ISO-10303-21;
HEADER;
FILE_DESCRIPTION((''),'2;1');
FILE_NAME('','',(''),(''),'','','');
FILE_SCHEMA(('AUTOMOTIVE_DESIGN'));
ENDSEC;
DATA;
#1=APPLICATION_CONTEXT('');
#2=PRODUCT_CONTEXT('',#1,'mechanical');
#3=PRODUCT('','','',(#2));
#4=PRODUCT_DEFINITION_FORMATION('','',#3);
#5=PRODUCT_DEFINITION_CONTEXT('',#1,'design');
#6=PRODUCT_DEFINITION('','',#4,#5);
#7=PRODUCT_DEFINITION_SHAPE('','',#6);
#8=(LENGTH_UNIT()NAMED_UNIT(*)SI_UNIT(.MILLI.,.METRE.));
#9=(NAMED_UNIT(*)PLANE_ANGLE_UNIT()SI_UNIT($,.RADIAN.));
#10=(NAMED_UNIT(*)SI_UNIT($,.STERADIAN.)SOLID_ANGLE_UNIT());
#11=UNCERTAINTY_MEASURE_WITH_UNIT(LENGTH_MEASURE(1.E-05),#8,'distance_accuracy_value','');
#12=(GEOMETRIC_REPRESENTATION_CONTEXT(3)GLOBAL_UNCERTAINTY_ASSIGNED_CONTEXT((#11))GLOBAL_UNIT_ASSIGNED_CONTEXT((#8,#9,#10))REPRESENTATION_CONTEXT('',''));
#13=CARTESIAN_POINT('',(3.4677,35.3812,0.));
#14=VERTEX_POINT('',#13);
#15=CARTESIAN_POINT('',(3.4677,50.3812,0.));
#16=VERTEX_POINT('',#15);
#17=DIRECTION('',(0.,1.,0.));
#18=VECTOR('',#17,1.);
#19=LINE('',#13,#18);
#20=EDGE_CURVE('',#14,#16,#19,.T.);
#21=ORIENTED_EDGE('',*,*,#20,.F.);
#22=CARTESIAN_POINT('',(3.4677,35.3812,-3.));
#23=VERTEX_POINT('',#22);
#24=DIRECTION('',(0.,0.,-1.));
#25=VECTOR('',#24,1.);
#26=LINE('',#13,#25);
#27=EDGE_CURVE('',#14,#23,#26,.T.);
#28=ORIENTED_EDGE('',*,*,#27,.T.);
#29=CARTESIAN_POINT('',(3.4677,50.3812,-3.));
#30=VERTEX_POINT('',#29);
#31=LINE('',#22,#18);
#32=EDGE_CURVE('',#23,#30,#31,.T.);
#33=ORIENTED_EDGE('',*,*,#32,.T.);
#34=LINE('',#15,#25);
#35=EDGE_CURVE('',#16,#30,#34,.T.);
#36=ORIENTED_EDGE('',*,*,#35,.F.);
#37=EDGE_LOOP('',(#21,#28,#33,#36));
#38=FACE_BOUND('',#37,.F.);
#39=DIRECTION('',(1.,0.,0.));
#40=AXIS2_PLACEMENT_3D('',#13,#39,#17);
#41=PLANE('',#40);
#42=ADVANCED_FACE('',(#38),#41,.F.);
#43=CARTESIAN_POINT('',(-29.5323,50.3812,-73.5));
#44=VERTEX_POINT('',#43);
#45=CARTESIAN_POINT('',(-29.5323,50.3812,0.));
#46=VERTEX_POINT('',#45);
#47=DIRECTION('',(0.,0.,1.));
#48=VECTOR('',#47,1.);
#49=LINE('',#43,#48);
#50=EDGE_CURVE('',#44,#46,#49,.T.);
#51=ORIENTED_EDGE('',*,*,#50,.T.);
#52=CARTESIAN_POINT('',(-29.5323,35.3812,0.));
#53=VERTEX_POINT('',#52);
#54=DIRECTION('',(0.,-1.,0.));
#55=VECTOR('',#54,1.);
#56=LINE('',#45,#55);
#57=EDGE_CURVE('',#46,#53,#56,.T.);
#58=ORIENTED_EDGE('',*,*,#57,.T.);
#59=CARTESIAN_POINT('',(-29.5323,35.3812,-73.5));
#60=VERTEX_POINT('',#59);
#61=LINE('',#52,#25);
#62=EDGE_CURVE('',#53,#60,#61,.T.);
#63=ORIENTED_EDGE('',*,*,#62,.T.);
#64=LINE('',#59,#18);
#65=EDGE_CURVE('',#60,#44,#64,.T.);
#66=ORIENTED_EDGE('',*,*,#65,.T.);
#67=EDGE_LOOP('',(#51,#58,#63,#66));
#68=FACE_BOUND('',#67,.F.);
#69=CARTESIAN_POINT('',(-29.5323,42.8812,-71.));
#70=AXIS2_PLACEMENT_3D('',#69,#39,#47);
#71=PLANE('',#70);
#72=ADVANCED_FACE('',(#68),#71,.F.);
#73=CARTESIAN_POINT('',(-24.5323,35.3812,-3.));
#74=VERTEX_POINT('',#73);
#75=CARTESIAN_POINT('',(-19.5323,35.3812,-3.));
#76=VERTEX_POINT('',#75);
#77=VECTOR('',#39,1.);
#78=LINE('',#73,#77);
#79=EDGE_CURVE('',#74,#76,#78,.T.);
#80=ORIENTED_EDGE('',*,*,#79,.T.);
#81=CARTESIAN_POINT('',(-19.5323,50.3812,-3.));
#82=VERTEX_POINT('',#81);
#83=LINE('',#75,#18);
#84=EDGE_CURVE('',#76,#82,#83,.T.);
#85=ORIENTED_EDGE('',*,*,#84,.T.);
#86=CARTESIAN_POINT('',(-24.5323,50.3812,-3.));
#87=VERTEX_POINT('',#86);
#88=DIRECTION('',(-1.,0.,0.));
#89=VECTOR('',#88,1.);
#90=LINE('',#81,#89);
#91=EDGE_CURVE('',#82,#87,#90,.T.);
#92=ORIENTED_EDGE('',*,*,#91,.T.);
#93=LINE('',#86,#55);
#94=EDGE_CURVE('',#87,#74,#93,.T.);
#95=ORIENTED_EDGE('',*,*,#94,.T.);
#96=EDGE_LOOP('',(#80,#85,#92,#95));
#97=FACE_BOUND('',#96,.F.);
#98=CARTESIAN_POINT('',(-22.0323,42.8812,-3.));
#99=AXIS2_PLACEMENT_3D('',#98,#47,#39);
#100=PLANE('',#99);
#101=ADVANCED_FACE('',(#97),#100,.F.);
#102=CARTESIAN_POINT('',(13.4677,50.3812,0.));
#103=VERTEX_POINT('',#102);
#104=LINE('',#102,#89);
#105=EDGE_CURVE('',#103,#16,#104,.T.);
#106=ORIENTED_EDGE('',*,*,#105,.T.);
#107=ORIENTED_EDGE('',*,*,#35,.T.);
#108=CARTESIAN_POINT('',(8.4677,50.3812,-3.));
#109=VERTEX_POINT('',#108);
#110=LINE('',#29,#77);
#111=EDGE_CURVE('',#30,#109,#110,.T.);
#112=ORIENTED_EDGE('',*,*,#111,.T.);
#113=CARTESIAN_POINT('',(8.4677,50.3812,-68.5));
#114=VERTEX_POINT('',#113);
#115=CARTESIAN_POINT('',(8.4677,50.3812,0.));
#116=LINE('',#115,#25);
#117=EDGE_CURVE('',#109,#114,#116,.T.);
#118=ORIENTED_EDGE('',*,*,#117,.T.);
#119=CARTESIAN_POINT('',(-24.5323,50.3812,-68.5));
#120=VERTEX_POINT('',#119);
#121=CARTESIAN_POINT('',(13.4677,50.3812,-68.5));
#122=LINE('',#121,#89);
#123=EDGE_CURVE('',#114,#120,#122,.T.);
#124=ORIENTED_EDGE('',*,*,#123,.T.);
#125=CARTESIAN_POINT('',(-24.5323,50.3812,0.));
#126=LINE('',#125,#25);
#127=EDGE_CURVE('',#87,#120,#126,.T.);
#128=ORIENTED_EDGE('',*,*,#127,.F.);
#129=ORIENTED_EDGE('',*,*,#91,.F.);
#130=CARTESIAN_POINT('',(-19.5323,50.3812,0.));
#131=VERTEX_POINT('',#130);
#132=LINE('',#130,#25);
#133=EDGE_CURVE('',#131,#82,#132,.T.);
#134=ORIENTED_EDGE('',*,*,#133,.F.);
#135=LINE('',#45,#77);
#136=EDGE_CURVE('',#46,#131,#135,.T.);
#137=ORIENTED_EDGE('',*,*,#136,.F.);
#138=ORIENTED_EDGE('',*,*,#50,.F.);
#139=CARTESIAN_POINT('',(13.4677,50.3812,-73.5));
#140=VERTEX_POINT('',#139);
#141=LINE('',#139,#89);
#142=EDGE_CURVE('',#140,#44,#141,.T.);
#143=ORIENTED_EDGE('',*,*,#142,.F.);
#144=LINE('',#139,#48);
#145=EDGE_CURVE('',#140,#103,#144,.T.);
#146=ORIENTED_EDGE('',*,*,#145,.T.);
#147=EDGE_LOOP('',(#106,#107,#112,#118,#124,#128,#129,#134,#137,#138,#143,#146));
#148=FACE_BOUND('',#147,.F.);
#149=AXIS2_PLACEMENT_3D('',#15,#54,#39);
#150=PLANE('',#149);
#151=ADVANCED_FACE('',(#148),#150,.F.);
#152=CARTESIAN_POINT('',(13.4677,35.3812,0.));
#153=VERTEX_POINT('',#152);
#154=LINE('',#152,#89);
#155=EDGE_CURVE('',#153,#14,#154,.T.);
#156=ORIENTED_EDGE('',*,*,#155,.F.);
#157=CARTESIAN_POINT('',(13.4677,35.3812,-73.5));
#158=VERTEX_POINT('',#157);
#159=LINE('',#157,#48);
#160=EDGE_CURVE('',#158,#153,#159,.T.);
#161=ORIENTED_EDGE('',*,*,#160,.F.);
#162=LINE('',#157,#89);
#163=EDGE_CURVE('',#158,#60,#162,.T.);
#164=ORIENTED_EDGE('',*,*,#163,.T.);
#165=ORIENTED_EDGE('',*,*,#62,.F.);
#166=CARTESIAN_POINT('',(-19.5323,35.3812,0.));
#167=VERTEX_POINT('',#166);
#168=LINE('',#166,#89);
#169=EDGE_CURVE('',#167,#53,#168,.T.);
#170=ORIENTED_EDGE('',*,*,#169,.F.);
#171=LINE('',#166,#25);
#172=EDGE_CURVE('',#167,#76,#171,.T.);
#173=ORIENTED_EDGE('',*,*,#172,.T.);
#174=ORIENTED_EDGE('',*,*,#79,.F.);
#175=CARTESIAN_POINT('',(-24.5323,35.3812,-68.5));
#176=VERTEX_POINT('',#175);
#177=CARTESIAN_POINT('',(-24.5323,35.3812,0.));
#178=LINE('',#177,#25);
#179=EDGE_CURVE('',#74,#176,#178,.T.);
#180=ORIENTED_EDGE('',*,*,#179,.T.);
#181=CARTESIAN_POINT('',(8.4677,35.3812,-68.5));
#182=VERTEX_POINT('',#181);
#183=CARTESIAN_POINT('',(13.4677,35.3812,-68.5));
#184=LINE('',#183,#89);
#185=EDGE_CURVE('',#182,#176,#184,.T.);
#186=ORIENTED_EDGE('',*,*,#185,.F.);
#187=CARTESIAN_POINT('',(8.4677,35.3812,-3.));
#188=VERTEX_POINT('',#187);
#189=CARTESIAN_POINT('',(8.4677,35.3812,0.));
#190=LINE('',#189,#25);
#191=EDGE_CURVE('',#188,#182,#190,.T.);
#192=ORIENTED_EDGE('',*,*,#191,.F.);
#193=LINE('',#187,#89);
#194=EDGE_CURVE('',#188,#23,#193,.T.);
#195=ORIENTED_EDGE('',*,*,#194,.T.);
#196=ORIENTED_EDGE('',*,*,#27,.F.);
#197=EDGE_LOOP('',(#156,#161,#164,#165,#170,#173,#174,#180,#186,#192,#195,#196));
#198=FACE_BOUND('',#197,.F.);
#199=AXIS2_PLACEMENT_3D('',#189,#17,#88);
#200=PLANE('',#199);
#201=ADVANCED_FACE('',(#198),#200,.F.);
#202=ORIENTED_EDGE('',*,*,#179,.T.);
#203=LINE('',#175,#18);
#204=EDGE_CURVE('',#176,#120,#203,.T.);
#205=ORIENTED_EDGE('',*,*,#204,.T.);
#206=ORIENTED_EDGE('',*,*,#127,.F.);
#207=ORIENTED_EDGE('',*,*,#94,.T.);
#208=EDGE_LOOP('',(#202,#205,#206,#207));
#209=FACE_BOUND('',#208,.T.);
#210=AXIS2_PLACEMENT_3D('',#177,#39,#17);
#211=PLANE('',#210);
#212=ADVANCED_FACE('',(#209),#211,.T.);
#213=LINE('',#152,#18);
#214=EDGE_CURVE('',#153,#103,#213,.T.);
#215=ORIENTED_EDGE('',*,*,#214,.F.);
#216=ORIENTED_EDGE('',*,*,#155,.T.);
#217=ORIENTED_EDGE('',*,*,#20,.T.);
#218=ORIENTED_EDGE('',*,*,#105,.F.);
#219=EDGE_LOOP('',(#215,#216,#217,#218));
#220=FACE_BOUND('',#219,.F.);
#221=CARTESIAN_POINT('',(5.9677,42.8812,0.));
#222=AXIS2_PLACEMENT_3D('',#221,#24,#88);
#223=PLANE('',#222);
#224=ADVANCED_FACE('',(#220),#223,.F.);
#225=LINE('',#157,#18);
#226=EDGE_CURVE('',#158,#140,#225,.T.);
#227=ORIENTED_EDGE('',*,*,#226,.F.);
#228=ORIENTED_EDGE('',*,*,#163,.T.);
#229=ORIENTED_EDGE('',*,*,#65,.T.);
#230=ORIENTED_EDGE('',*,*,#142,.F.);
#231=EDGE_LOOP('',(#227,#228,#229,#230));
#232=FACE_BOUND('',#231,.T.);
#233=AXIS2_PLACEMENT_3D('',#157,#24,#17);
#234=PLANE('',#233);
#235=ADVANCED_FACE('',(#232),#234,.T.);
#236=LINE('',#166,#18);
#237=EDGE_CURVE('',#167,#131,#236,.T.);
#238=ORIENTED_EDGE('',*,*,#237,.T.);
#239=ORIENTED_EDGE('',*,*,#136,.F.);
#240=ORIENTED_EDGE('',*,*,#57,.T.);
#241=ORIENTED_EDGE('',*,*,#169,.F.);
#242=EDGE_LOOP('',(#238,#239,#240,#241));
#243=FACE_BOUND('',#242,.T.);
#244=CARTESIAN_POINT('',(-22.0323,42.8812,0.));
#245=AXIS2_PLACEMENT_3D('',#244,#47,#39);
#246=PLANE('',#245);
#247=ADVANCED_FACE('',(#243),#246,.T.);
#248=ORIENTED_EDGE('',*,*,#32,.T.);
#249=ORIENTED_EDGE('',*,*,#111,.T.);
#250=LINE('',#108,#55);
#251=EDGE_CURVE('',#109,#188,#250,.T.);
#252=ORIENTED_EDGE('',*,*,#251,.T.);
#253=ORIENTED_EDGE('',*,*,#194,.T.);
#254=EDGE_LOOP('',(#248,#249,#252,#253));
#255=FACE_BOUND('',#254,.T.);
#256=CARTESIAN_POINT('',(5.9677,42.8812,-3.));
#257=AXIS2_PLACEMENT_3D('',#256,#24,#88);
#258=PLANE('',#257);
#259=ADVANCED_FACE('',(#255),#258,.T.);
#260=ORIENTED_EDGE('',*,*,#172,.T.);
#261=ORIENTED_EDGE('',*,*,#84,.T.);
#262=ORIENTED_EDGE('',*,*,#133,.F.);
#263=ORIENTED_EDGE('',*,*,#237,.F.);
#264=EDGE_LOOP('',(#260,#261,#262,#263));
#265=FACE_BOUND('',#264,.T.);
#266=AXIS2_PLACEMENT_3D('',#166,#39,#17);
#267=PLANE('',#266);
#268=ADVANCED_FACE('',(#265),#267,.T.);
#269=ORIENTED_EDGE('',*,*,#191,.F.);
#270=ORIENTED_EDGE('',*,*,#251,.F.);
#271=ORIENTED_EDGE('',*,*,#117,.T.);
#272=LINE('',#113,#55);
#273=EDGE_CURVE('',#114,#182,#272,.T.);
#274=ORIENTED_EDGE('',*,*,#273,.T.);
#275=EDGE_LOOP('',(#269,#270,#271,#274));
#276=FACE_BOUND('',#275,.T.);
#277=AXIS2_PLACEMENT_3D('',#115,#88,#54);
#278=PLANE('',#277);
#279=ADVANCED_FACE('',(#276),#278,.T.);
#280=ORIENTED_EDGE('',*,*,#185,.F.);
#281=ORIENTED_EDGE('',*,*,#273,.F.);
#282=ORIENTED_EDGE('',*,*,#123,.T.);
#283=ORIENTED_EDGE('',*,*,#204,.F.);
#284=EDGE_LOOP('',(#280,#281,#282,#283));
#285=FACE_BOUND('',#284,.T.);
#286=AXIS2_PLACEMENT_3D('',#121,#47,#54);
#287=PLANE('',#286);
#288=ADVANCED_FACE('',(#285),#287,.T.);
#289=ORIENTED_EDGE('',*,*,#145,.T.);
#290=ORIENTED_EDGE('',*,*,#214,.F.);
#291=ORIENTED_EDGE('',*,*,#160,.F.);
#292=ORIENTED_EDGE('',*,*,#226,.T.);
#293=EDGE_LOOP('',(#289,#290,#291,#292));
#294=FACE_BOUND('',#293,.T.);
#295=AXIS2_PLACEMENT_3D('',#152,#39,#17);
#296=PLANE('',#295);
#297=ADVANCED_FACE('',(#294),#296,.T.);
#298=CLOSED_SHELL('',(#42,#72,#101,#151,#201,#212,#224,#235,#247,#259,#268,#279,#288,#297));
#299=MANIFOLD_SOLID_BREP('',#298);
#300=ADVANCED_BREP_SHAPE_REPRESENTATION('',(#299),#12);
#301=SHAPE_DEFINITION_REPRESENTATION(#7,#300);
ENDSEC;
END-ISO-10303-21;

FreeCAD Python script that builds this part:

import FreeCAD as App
import Part
import Sketcher

doc = App.newDocument("Part")
params = doc.addObject("Spreadsheet::Sheet", "Params")
for row, (alias, value) in enumerate([
    ("sketch1_width", "5 mm"),
    ("sketch1_height", "15 mm"),
    ("pad1_length", "3 mm"),
    ("sketch2_width", "5 mm"),
    ("sketch2_height", "15 mm"),
    ("pad2_length", "68.5 mm"),
    ("sketch3_width", "15 mm"),
    ("sketch3_height", "5 mm"),
    ("pad3_length", "43 mm"),
], start=1):
    params.set(f"A{row}", alias)
    params.set(f"B{row}", "=" + value)
    params.setAlias(f"B{row}", alias)

body = doc.addObject("PartDesign::Body", "Body")
body.AllowCompound = True

# Sketch on XY plane
sketch1 = body.newObject("Sketcher::SketchObject", "Sketch")
sketch1.AttachmentSupport = (doc.getObject("XY_Plane"), [""])
sketch1.MapMode = "FlatFace"
sketch1.addGeometry([
    Part.LineSegment(App.Vector(-25, 35, 0), App.Vector(-20, 35, 0)),  # 0
    Part.LineSegment(App.Vector(-20, 35, 0), App.Vector(-20, 50, 0)),  # 1
    Part.LineSegment(App.Vector(-20, 50, 0), App.Vector(-25, 50, 0)),  # 2
    Part.LineSegment(App.Vector(-25, 50, 0), App.Vector(-25, 35, 0)),  # 3
    Part.LineSegment(App.Vector(8, 35, 0), App.Vector(8, 50, 0)),  # 4
    Part.LineSegment(App.Vector(8, 50, 0), App.Vector(3, 50, 0)),  # 5
    Part.LineSegment(App.Vector(3, 50, 0), App.Vector(3, 35, 0)),  # 6
    Part.LineSegment(App.Vector(3, 35, 0), App.Vector(8, 35, 0)),  # 7
], False)
sketch1.addConstraint([
    Sketcher.Constraint("Coincident", 0, 2, 1, 1),
    Sketcher.Constraint("Coincident", 1, 2, 2, 1),
    Sketcher.Constraint("Coincident", 2, 2, 3, 1),
    Sketcher.Constraint("Coincident", 3, 2, 0, 1),
    Sketcher.Constraint("Coincident", 4, 2, 5, 1),
    Sketcher.Constraint("Coincident", 5, 2, 6, 1),
    Sketcher.Constraint("Coincident", 6, 2, 7, 1),
    Sketcher.Constraint("Coincident", 7, 2, 4, 1),
    Sketcher.Constraint("Horizontal", 0),
    Sketcher.Constraint("Vertical", 1),
    Sketcher.Constraint("Horizontal", 2),
    Sketcher.Constraint("Vertical", 3),
    Sketcher.Constraint("Vertical", 4),
    Sketcher.Constraint("Horizontal", 5),
    Sketcher.Constraint("Vertical", 6),
    Sketcher.Constraint("Horizontal", 7),
    Sketcher.Constraint("Horizontal", 2, 2, 4, 2),
    Sketcher.Constraint("Horizontal", 3, 2, 6, 2),
    Sketcher.Constraint("Equal", 2, 5),
    Sketcher.Constraint("DistanceX", 0, 1, 0, 2, 5.0),
    Sketcher.Constraint("DistanceY", 1, 1, 1, 2, 15.0),
    Sketcher.Constraint("DistanceX", 1, 2, 4, 2, 28.0),
    Sketcher.Constraint("DistanceX", 0, 2, -1, 1, 19.5323),
    Sketcher.Constraint("DistanceY", -1, 1, 0, 2, 35.3812),
])
sketch1.setExpression("Constraints[19]", "Params.sketch1_width")
sketch1.setExpression("Constraints[20]", "Params.sketch1_height")
pad1 = body.newObject("PartDesign::Pad", "Pad")
pad1.Profile = sketch1
pad1.setExpression("Length", "Params.pad1_length")
pad1.Reversed = True

# Sketch on XY plane
sketch2 = body.newObject("Sketcher::SketchObject", "Sketch001")
sketch2.AttachmentSupport = (doc.getObject("XY_Plane"), [""])
sketch2.MapMode = "FlatFace"
sketch2.addGeometry([
    Part.LineSegment(App.Vector(8, 35, 0), App.Vector(13, 35, 0)),  # 0
    Part.LineSegment(App.Vector(13, 35, 0), App.Vector(13, 50, 0)),  # 1
    Part.LineSegment(App.Vector(13, 50, 0), App.Vector(8, 50, 0)),  # 2
    Part.LineSegment(App.Vector(8, 50, 0), App.Vector(8, 35, 0)),  # 3
    Part.LineSegment(App.Vector(-30, 50, 0), App.Vector(-30, 35, 0)),  # 4
    Part.LineSegment(App.Vector(-30, 35, 0), App.Vector(-25, 35, 0)),  # 5
    Part.LineSegment(App.Vector(-25, 35, 0), App.Vector(-25, 50, 0)),  # 6
    Part.LineSegment(App.Vector(-25, 50, 0), App.Vector(-30, 50, 0)),  # 7
], False)
sketch2.addConstraint([
    Sketcher.Constraint("Coincident", 0, 2, 1, 1),
    Sketcher.Constraint("Coincident", 1, 2, 2, 1),
    Sketcher.Constraint("Coincident", 2, 2, 3, 1),
    Sketcher.Constraint("Coincident", 3, 2, 0, 1),
    Sketcher.Constraint("Coincident", 4, 2, 5, 1),
    Sketcher.Constraint("Coincident", 5, 2, 6, 1),
    Sketcher.Constraint("Coincident", 6, 2, 7, 1),
    Sketcher.Constraint("Coincident", 7, 2, 4, 1),
    Sketcher.Constraint("Horizontal", 0),
    Sketcher.Constraint("Vertical", 1),
    Sketcher.Constraint("Horizontal", 2),
    Sketcher.Constraint("Vertical", 3),
    Sketcher.Constraint("Vertical", 4),
    Sketcher.Constraint("Horizontal", 5),
    Sketcher.Constraint("Vertical", 6),
    Sketcher.Constraint("Horizontal", 7),
    Sketcher.Constraint("Horizontal", 3, 2, 4, 2),
    Sketcher.Constraint("Horizontal", 2, 2, 6, 2),
    Sketcher.Constraint("Equal", 2, 5),
    Sketcher.Constraint("DistanceX", 0, 1, 0, 2, 5.0),
    Sketcher.Constraint("DistanceY", 1, 1, 1, 2, 15.0),
    Sketcher.Constraint("DistanceX", 4, 2, 3, 2, 38.0),
    Sketcher.Constraint("DistanceX", -1, 1, 0, 2, 13.4677),
    Sketcher.Constraint("DistanceY", -1, 1, 0, 2, 35.3812),
])
sketch2.setExpression("Constraints[19]", "Params.sketch2_width")
sketch2.setExpression("Constraints[20]", "Params.sketch2_height")
pad2 = body.newObject("PartDesign::Pad", "Pad001")
pad2.Profile = sketch2
pad2.setExpression("Length", "Params.pad2_length")
pad2.Reversed = True

# Sketch on YZ plane
sketch3 = body.newObject("Sketcher::SketchObject", "Sketch002")
sketch3.AttachmentSupport = (doc.getObject("YZ_Plane"), [""])
sketch3.MapMode = "FlatFace"
sketch3.AttachmentOffset = App.Placement(App.Vector(0, 0, 13.4677), App.Rotation())
sketch3.addGeometry([
    Part.LineSegment(App.Vector(50, -68, 0), App.Vector(35, -68, 0)),
    Part.LineSegment(App.Vector(35, -68, 0), App.Vector(35, -74, 0)),
    Part.LineSegment(App.Vector(35, -74, 0), App.Vector(50, -74, 0)),
    Part.LineSegment(App.Vector(50, -74, 0), App.Vector(50, -68, 0)),
], False)
sketch3.addConstraint([
    Sketcher.Constraint("Coincident", 0, 2, 1, 1),
    Sketcher.Constraint("Coincident", 1, 2, 2, 1),
    Sketcher.Constraint("Coincident", 2, 2, 3, 1),
    Sketcher.Constraint("Coincident", 3, 2, 0, 1),
    Sketcher.Constraint("Horizontal", 0),
    Sketcher.Constraint("Vertical", 1),
    Sketcher.Constraint("Horizontal", 2),
    Sketcher.Constraint("Vertical", 3),
    Sketcher.Constraint("DistanceX", 0, 2, 0, 1, 15.0),
    Sketcher.Constraint("DistanceY", 1, 2, 1, 1, 5.0),
    Sketcher.Constraint("DistanceY", 0, 2, -1, 1, 68.5),
    Sketcher.Constraint("DistanceX", -1, 1, 0, 2, 35.3812),
])
sketch3.setExpression("Constraints[8]", "Params.sketch3_width")
sketch3.setExpression("Constraints[9]", "Params.sketch3_height")
pad3 = body.newObject("PartDesign::Pad", "Pad002")
pad3.Profile = sketch3
pad3.setExpression("Length", "Params.pad3_length")
pad3.Reversed = True

doc.recompute()
